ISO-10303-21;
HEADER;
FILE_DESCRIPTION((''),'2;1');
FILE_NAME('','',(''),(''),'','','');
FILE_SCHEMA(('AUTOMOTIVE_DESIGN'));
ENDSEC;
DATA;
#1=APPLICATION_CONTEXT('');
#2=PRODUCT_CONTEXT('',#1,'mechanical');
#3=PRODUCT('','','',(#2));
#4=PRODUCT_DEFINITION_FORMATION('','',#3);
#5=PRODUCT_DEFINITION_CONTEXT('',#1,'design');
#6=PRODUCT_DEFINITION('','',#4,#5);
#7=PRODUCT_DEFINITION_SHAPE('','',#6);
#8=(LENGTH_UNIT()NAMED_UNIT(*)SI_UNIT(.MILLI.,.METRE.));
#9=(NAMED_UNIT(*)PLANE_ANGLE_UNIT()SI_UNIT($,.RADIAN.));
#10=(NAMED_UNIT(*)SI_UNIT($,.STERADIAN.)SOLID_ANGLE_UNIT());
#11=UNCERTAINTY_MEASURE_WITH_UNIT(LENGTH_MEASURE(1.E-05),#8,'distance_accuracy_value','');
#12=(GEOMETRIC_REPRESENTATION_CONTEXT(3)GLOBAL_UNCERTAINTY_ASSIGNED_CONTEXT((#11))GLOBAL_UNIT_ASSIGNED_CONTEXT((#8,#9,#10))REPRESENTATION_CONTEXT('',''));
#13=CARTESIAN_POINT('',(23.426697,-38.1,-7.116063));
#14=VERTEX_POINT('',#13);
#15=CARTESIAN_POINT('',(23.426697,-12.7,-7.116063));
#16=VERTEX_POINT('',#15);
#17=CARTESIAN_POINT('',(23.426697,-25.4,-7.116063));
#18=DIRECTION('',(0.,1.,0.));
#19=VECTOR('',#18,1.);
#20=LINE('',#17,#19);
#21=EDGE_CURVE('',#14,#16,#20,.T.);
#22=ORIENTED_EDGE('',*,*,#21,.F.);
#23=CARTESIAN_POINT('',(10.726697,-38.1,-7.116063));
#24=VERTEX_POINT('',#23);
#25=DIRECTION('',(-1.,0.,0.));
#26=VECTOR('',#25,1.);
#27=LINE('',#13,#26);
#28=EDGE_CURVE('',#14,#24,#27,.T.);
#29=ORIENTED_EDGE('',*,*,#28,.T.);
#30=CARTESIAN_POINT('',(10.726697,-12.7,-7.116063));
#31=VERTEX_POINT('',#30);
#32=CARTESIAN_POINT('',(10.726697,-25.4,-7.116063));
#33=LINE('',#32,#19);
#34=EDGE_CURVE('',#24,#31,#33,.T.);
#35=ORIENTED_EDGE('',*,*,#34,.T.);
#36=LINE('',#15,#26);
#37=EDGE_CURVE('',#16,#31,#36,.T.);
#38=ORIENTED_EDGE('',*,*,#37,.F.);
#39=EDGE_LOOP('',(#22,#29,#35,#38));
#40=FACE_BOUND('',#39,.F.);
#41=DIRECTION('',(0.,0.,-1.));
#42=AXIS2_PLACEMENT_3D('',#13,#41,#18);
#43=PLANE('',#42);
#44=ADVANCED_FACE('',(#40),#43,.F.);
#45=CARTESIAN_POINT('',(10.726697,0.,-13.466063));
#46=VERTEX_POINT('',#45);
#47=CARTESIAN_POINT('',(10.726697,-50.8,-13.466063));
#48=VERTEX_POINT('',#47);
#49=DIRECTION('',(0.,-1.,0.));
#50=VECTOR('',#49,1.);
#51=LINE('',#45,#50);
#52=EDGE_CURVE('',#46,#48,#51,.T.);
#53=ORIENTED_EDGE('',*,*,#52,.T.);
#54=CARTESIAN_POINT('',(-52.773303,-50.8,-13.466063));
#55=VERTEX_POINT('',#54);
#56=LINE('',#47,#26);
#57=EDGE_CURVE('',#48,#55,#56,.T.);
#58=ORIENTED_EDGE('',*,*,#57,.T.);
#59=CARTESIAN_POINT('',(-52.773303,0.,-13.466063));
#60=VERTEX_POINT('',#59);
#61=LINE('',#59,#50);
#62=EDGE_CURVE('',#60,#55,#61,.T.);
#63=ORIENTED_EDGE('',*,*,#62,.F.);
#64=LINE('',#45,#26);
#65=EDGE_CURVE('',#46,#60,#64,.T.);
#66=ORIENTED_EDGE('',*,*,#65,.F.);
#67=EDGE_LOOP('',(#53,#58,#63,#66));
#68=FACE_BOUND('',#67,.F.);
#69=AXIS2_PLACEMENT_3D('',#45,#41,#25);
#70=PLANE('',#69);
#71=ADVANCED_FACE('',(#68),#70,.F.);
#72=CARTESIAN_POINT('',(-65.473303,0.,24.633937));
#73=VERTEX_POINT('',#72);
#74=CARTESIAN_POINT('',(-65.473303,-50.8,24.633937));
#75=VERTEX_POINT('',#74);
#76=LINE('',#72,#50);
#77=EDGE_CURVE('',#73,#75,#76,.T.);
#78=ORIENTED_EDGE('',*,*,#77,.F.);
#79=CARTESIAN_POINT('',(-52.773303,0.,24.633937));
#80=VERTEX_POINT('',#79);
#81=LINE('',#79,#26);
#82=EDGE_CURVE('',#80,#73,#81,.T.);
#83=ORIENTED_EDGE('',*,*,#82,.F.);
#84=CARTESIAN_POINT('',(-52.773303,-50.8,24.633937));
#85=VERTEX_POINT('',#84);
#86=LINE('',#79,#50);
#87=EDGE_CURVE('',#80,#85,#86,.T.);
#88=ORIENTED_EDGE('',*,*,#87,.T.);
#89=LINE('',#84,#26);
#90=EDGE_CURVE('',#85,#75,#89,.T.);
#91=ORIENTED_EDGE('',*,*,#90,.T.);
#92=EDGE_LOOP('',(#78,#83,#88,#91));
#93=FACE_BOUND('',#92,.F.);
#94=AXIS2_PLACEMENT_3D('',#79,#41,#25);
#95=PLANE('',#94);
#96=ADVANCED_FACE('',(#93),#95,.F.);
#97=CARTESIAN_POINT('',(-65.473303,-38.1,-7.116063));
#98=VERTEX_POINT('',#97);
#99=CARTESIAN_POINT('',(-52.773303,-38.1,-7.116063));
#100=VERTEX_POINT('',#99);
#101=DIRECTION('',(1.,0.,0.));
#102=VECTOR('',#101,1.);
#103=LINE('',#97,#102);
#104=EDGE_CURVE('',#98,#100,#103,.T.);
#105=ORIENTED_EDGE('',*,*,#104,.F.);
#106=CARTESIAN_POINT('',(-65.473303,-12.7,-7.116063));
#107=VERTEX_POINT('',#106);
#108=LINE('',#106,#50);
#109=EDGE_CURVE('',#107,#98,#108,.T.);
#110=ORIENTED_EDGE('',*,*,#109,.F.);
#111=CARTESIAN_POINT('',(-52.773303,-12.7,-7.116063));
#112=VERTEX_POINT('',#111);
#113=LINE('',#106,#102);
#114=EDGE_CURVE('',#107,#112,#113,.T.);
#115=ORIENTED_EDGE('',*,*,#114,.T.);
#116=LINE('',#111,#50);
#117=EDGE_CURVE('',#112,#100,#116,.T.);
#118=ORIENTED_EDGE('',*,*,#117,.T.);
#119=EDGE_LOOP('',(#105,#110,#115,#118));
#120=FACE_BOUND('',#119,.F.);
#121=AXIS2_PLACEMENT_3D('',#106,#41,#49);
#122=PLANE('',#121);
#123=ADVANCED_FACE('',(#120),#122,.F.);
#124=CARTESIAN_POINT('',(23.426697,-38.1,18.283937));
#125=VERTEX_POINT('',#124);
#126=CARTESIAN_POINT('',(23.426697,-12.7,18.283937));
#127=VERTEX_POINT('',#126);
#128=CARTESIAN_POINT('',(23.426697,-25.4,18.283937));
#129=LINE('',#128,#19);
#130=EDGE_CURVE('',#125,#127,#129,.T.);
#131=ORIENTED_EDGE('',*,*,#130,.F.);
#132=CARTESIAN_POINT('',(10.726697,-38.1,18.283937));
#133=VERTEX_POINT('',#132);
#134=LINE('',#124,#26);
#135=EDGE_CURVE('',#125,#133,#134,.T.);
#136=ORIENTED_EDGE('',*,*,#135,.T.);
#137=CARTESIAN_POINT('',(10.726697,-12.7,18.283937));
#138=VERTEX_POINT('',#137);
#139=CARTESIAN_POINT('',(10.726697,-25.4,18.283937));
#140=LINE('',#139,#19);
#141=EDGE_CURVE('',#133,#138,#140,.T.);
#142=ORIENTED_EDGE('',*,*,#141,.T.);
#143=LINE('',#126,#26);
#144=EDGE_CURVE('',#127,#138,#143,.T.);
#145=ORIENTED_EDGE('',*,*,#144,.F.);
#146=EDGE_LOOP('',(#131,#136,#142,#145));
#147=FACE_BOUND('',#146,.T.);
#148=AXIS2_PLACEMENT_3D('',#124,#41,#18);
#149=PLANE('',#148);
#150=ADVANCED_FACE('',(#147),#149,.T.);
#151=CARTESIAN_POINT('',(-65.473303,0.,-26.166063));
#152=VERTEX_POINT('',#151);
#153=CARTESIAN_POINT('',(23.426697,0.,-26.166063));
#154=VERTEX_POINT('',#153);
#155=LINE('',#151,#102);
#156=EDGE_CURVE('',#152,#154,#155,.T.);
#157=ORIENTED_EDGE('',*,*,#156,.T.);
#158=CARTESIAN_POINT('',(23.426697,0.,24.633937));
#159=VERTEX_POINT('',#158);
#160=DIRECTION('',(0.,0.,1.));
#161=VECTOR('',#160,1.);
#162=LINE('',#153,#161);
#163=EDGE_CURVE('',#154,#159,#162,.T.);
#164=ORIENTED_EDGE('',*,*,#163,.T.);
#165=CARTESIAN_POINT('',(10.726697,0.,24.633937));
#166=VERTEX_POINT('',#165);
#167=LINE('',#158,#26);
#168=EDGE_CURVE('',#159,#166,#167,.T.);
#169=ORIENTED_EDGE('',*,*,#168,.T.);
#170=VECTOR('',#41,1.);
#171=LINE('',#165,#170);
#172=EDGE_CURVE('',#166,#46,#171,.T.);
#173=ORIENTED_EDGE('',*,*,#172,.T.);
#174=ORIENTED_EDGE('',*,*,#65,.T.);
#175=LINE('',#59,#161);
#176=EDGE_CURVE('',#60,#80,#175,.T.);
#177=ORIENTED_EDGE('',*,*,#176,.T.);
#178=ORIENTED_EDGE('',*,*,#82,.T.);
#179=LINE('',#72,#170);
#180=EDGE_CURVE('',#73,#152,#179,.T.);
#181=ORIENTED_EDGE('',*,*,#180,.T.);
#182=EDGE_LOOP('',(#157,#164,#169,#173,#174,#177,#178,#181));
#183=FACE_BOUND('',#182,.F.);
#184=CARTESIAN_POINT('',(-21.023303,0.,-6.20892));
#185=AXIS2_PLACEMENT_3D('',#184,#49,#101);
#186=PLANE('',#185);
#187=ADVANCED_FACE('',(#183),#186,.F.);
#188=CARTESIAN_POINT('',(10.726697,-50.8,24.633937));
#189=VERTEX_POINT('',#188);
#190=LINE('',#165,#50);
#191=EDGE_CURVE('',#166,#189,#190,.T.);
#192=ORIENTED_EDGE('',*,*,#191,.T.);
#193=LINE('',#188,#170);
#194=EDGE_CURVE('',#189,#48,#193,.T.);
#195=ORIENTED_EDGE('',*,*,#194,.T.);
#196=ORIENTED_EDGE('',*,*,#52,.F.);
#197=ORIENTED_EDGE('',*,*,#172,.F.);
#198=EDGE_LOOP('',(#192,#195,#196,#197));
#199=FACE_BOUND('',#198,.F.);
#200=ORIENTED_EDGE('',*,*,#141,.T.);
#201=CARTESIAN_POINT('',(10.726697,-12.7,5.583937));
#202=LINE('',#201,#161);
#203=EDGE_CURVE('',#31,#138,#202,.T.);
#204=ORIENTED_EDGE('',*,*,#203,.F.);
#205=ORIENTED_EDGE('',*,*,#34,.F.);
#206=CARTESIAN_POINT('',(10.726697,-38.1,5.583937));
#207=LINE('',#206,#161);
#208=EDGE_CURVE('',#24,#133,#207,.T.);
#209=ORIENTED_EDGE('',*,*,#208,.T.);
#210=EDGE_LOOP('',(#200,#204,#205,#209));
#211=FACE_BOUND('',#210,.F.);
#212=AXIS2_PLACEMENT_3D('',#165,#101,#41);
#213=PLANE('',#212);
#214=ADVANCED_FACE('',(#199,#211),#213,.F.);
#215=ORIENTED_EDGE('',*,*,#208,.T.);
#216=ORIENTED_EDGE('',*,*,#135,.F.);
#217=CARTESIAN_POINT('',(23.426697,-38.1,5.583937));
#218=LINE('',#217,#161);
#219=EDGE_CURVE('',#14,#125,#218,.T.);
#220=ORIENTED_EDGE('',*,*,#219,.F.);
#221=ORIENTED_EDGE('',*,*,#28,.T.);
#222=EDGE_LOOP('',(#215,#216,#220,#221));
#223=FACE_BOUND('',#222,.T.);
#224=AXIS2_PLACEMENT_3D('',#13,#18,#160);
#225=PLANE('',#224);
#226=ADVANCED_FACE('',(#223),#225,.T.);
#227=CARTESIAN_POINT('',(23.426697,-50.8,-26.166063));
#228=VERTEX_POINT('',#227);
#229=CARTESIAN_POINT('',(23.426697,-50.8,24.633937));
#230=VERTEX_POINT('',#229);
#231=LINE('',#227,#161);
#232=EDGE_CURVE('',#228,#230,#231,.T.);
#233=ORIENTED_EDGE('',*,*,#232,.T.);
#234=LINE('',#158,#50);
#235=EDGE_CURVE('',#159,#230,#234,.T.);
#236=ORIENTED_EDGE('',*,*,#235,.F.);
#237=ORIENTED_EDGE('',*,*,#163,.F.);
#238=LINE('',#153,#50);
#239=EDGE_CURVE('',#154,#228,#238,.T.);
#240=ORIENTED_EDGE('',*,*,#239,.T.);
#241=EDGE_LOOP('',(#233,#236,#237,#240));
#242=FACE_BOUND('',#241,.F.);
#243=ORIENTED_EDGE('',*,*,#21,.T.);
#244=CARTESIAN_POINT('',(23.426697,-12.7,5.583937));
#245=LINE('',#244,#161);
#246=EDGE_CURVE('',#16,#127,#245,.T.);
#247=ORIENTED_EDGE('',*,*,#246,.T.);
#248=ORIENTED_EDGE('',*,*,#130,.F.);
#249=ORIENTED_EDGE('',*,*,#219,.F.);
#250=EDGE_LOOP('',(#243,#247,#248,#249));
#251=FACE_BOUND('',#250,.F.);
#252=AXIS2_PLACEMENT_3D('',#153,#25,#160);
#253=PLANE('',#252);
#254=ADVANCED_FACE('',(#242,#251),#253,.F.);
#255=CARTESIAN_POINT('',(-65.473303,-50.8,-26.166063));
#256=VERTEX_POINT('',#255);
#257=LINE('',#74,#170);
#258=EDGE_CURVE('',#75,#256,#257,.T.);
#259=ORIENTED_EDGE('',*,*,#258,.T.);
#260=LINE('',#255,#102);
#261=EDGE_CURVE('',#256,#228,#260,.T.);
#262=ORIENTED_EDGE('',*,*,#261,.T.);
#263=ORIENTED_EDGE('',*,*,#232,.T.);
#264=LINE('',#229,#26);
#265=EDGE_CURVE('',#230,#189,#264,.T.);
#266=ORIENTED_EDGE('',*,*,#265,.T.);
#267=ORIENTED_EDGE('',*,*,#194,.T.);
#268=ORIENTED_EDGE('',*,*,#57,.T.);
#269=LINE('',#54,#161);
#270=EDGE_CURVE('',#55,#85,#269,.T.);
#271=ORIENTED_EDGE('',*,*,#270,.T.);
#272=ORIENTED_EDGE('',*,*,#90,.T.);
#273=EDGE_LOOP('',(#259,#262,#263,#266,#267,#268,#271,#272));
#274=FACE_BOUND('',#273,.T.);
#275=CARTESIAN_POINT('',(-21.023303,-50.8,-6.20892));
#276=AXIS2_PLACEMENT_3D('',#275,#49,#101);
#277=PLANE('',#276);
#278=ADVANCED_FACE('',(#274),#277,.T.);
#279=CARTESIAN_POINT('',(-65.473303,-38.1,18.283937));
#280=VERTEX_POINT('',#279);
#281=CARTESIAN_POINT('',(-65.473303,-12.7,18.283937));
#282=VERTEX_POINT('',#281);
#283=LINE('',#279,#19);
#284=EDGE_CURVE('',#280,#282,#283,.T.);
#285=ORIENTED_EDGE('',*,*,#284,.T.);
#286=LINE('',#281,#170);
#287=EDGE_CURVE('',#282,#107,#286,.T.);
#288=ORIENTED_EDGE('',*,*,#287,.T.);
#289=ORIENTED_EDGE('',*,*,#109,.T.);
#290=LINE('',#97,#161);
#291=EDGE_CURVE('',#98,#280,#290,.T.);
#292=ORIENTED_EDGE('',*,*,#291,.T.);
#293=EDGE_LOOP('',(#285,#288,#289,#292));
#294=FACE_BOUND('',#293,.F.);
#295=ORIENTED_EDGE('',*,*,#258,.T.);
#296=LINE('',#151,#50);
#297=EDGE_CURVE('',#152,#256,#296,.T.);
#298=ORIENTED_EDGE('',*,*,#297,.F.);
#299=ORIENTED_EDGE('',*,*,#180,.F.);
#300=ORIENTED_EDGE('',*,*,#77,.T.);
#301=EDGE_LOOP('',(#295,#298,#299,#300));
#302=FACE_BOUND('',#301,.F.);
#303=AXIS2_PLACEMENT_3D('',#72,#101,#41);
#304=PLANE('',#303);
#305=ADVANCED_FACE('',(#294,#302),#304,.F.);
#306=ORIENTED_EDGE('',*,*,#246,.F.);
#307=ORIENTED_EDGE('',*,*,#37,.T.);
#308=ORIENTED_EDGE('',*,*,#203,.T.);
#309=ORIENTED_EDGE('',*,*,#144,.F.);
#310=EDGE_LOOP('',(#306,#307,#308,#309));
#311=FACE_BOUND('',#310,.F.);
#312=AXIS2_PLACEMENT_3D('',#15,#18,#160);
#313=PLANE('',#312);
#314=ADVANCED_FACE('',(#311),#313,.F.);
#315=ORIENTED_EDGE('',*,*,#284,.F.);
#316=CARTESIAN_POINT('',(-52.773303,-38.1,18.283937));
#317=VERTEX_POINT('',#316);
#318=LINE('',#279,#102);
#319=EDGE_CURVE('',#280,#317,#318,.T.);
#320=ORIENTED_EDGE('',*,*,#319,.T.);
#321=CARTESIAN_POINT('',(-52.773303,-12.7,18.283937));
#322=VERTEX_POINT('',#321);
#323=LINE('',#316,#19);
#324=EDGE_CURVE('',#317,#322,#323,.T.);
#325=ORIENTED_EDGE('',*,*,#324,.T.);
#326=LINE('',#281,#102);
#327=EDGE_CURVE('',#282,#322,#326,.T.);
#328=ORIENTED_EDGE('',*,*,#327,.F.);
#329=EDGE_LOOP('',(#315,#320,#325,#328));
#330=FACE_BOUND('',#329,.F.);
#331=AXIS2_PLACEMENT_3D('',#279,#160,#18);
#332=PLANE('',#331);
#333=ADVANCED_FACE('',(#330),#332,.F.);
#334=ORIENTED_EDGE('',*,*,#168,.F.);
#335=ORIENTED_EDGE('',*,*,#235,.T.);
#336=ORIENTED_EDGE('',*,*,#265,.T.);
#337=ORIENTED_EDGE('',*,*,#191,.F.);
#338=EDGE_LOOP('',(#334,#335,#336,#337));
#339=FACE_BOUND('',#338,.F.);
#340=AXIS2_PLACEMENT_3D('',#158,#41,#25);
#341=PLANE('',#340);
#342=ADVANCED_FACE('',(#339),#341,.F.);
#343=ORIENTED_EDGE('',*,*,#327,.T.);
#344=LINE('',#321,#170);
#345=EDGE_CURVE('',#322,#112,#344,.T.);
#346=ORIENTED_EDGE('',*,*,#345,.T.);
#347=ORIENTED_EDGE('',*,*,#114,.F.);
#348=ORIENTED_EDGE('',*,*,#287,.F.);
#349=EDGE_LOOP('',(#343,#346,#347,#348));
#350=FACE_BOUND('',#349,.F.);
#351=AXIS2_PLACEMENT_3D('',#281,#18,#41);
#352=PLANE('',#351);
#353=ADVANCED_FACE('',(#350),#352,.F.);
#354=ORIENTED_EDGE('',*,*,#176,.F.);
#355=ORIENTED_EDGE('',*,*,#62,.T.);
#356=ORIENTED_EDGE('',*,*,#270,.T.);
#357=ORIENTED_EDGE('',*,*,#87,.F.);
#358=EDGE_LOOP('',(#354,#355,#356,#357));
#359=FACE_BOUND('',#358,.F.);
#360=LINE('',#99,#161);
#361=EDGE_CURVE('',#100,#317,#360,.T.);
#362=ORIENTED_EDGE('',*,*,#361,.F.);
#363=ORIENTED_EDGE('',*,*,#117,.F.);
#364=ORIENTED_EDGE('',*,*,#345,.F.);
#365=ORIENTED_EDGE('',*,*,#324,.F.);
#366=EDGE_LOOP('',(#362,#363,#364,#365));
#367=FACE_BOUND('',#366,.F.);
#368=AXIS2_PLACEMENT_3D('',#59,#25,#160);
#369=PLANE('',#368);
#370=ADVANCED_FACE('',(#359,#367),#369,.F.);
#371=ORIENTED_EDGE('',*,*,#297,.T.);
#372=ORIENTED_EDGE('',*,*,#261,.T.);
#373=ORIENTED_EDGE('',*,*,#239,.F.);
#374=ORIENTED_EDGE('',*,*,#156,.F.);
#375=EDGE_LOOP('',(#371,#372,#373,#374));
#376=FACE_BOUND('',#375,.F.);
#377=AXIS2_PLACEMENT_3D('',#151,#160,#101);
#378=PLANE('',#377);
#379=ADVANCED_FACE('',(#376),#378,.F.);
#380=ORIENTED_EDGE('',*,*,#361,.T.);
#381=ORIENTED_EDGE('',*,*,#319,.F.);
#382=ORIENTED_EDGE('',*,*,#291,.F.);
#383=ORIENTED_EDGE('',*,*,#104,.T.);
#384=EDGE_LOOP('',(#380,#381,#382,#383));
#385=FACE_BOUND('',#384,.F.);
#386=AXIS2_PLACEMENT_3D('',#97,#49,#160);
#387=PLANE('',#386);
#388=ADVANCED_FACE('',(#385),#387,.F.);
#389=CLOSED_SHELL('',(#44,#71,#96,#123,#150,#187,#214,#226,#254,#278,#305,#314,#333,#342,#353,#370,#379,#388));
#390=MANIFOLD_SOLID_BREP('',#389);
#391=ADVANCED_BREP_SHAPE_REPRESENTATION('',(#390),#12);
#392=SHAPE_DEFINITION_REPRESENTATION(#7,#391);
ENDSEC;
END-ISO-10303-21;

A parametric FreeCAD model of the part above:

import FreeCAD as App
import Part
import Sketcher
from FreeCAD import Vector
Q = App.Units.Quantity

doc = App.newDocument("Part")
body = doc.addObject("PartDesign::Body", "Body")

# Sketch on XZ plane
sketch1 = body.newObject("Sketcher::SketchObject", "Sketch")
sketch1.AttachmentSupport = (doc.getObject("XZ_Plane"), [""])
sketch1.MapMode = "FlatFace"
sketch1.addGeometry([
    Part.LineSegment(Vector(-53, 25, 0), Vector(-65, 25, 0)),  # 0
    Part.LineSegment(Vector(-65, 25, 0), Vector(-65, -26, 0)),  # 1
    Part.LineSegment(Vector(-65, -26, 0), Vector(23, -26, 0)),  # 2
    Part.LineSegment(Vector(23, -26, 0), Vector(23, 25, 0)),  # 3
    Part.LineSegment(Vector(23, 25, 0), Vector(11, 25, 0)),  # 4
    Part.LineSegment(Vector(11, 25, 0), Vector(11, -13, 0)),  # 5
    Part.LineSegment(Vector(11, -13, 0), Vector(-53, -13, 0)),  # 6
    Part.LineSegment(Vector(-53, -13, 0), Vector(-53, 25, 0)),  # 7
], False)
sketch1.addConstraint([
    Sketcher.Constraint("Coincident", 0, 2, 1, 1),
    Sketcher.Constraint("Coincident", 1, 2, 2, 1),
    Sketcher.Constraint("Coincident", 2, 2, 3, 1),
    Sketcher.Constraint("Coincident", 3, 2, 4, 1),
    Sketcher.Constraint("Coincident", 4, 2, 5, 1),
    Sketcher.Constraint("Coincident", 5, 2, 6, 1),
    Sketcher.Constraint("Coincident", 6, 2, 7, 1),
    Sketcher.Constraint("Coincident", 7, 2, 0, 1),
    Sketcher.Constraint("Horizontal", 0),
    Sketcher.Constraint("Vertical", 1),
    Sketcher.Constraint("Horizontal", 2),
    Sketcher.Constraint("Vertical", 3),
    Sketcher.Constraint("Horizontal", 4),
    Sketcher.Constraint("Vertical", 5),
    Sketcher.Constraint("Horizontal", 6),
    Sketcher.Constraint("Vertical", 7),
    Sketcher.Constraint("Horizontal", 0, 2, 3, 2),
    Sketcher.Constraint("Equal", 0, 4),
    Sketcher.Constraint("DistanceY", 1, 2, 1, 1, Q("2 in")),
    Sketcher.Constraint("DistanceX", 0, 2, 0, 1, Q("0.5 in")),
    Sketcher.Constraint("DistanceX", 2, 1, 2, 2, Q("3.5 in")),
    Sketcher.Constraint("DistanceY", 5, 2, 5, 1, Q("1.5 in")),
    Sketcher.Constraint("DistanceX", 0, 2, -1, 1, Q("65.473303 mm")),
    Sketcher.Constraint("DistanceY", -1, 1, 0, 2, Q("24.633937 mm")),
])
pad1 = body.newObject("PartDesign::Pad", "Pad")
pad1.Profile = sketch1
pad1.Length = Q("2 in")

# Sketch on YZ plane
sketch2 = body.newObject("Sketcher::SketchObject", "Sketch001")
sketch2.AttachmentSupport = (doc.getObject("YZ_Plane"), [""])
sketch2.MapMode = "FlatFace"
sketch2.AttachmentOffset = App.Placement(Vector(0, 0, 23.426697), App.Rotation())
sketch2.addGeometry([
    Part.LineSegment(Vector(-38, 18, 0), Vector(-38, -7, 0)),
    Part.LineSegment(Vector(-38, -7, 0), Vector(-13, -7, 0)),
    Part.LineSegment(Vector(-13, -7, 0), Vector(-13, 18, 0)),
    Part.LineSegment(Vector(-13, 18, 0), Vector(-38, 18, 0)),
], False)
sketch2.addConstraint([
    Sketcher.Constraint("Coincident", 0, 2, 1, 1),
    Sketcher.Constraint("Coincident", 1, 2, 2, 1),
    Sketcher.Constraint("Coincident", 2, 2, 3, 1),
    Sketcher.Constraint("Coincident", 3, 2, 0, 1),
    Sketcher.Constraint("Vertical", 0),
    Sketcher.Constraint("Horizontal", 1),
    Sketcher.Constraint("Vertical", 2),
    Sketcher.Constraint("Horizontal", 3),
    Sketcher.Constraint("Equal", 3, 0),
    Sketcher.Constraint("DistanceX", 1, 1, 1, 2, Q("1 in")),
    Sketcher.Constraint("DistanceX", 0, 2, -1, 1, Q("1.5 in")),
    Sketcher.Constraint("DistanceY", 0, 2, -1, 1, Q("7.116063 mm")),
])
pocket1 = body.newObject("PartDesign::Pocket", "Pocket")
pocket1.Profile = sketch2
pocket1.Length = Q("0.5 in")

# Sketch on YZ plane
sketch3 = body.newObject("Sketcher::SketchObject", "Sketch002")
sketch3.AttachmentSupport = (doc.getObject("YZ_Plane"), [""])
sketch3.MapMode = "FlatFace"
sketch3.AttachmentOffset = App.Placement(Vector(0, 0, -65.473303), App.Rotation())
sketch3.addGeometry([
    Part.LineSegment(Vector(-38, 18, 0), Vector(-13, 18, 0)),
    Part.LineSegment(Vector(-13, 18, 0), Vector(-13, -7, 0)),
    Part.LineSegment(Vector(-13, -7, 0), Vector(-38, -7, 0)),
    Part.LineSegment(Vector(-38, -7, 0), Vector(-38, 18, 0)),
], False)
sketch3.addConstraint([
    Sketcher.Constraint("Coincident", 0, 2, 1, 1),
    Sketcher.Constraint("Coincident", 1, 2, 2, 1),
    Sketcher.Constraint("Coincident", 2, 2, 3, 1),
    Sketcher.Constraint("Coincident", 3, 2, 0, 1),
    Sketcher.Constraint("Horizontal", 0),
    Sketcher.Constraint("Vertical", 1),
    Sketcher.Constraint("Horizontal", 2),
    Sketcher.Constraint("Vertical", 3),
    Sketcher.Constraint("Equal", 2, 1),
    Sketcher.Constraint("DistanceX", 0, 1, 0, 2, Q("1 in")),
    Sketcher.Constraint("DistanceX", 0, 2, -1, 1, Q("0.5 in")),
    Sketcher.Constraint("DistanceY", -1, 1, 0, 2, Q("18.283937 mm")),
])
pocket2 = body.newObject("PartDesign::Pocket", "Pocket001")
pocket2.Profile = sketch3
pocket2.Length = Q("0.5 in")
pocket2.Reversed = True

doc.recompute()
